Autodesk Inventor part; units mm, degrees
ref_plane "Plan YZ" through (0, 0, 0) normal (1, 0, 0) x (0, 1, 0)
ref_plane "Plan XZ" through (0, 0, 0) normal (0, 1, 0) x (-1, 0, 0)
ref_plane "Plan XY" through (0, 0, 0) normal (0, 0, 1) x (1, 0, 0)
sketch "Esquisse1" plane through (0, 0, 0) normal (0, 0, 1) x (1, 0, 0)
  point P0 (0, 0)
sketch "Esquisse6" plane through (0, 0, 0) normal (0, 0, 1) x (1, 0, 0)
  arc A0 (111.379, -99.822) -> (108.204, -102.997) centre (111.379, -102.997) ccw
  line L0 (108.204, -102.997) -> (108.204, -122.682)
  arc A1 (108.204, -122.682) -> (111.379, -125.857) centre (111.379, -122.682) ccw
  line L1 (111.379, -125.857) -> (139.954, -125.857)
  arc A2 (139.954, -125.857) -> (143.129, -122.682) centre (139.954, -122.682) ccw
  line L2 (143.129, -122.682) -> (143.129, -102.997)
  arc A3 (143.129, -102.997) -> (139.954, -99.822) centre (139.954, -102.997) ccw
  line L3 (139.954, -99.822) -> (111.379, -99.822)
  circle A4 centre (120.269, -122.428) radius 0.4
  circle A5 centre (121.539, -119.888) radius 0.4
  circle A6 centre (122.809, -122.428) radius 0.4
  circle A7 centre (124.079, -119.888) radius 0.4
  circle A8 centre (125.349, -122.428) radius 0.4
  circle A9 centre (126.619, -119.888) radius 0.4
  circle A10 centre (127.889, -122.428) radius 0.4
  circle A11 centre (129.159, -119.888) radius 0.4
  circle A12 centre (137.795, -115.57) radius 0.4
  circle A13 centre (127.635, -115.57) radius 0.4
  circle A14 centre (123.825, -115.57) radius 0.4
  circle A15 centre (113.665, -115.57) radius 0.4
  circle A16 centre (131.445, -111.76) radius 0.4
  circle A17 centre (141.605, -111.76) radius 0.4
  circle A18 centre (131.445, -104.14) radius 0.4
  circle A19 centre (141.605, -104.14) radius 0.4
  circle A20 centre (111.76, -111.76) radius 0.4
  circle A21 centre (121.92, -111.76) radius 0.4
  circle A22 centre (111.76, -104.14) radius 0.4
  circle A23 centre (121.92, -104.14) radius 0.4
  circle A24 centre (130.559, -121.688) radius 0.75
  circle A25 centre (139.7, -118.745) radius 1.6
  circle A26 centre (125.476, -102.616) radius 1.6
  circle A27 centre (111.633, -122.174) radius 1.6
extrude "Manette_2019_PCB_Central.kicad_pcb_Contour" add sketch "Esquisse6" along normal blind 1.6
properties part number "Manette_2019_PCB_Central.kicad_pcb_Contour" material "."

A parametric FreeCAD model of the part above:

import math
import FreeCAD as App
import Part
import Sketcher
Q = App.Units.Quantity

doc = App.newDocument("Part")
body = doc.addObject("PartDesign::Body", "Body")

sketch1 = doc.addObject("Sketcher::SketchObject", "Sketch")
body.addObject(sketch1)
sketch1.AttachmentSupport = (doc.XY_Plane, [""])
sketch1.MapMode = "FlatFace"
sketch1.addGeometry([
    Part.LineSegment(App.Vector(139.95, -99.82, 0), App.Vector(111.38, -99.82, 0)),
    Part.ArcOfCircle(Part.Circle(App.Vector(111.38, -103, 0), App.Vector(0, 0, 1), 3.17), math.radians(90), math.radians(180)),
    Part.LineSegment(App.Vector(108.2, -103, 0), App.Vector(108.2, -122.68, 0)),
    Part.ArcOfCircle(Part.Circle(App.Vector(111.38, -122.68, 0), App.Vector(0, 0, 1), 3.18), math.radians(180), math.radians(270)),
    Part.LineSegment(App.Vector(111.38, -125.86, 0), App.Vector(139.95, -125.86, 0)),
    Part.ArcOfCircle(Part.Circle(App.Vector(139.95, -122.68, 0), App.Vector(0, 0, 1), 3.17), math.radians(-90), math.radians(0)),
    Part.LineSegment(App.Vector(143.13, -122.68, 0), App.Vector(143.13, -103, 0)),
    Part.ArcOfCircle(Part.Circle(App.Vector(139.95, -103, 0), App.Vector(0, 0, 1), 3.17), math.radians(0), math.radians(90)),
    Part.Circle(App.Vector(111.63, -122.17, 0), App.Vector(0, 0, 1), 1.6),
    Part.Circle(App.Vector(120.27, -122.43, 0), App.Vector(0, 0, 1), 0.4),
    Part.Circle(App.Vector(122.81, -122.43, 0), App.Vector(0, 0, 1), 0.4),
    Part.Circle(App.Vector(125.35, -122.43, 0), App.Vector(0, 0, 1), 0.4),
    Part.Circle(App.Vector(121.54, -119.89, 0), App.Vector(0, 0, 1), 0.4),
    Part.Circle(App.Vector(124.08, -119.89, 0), App.Vector(0, 0, 1), 0.4),
    Part.Circle(App.Vector(113.67, -115.57, 0), App.Vector(0, 0, 1), 0.4),
    Part.Circle(App.Vector(123.83, -115.57, 0), App.Vector(0, 0, 1), 0.4),
    Part.Circle(App.Vector(127.89, -122.43, 0), App.Vector(0, 0, 1), 0.4),
    Part.Circle(App.Vector(126.62, -119.89, 0), App.Vector(0, 0, 1), 0.4),
    Part.Circle(App.Vector(129.16, -119.89, 0), App.Vector(0, 0, 1), 0.4),
    Part.Circle(App.Vector(130.56, -121.69, 0), App.Vector(0, 0, 1), 0.75),
    Part.Circle(App.Vector(127.64, -115.57, 0), App.Vector(0, 0, 1), 0.4),
    Part.Circle(App.Vector(139.7, -118.75, 0), App.Vector(0, 0, 1), 1.6),
    Part.Circle(App.Vector(137.79, -115.57, 0), App.Vector(0, 0, 1), 0.4),
    Part.Circle(App.Vector(111.76, -111.76, 0), App.Vector(0, 0, 1), 0.4),
    Part.Circle(App.Vector(121.92, -111.76, 0), App.Vector(0, 0, 1), 0.4),
    Part.Circle(App.Vector(111.76, -104.14, 0), App.Vector(0, 0, 1), 0.4),
    Part.Circle(App.Vector(121.92, -104.14, 0), App.Vector(0, 0, 1), 0.4),
    Part.Circle(App.Vector(125.48, -102.62, 0), App.Vector(0, 0, 1), 1.6),
    Part.Circle(App.Vector(131.44, -111.76, 0), App.Vector(0, 0, 1), 0.4),
    Part.Circle(App.Vector(141.6, -111.76, 0), App.Vector(0, 0, 1), 0.4),
    Part.Circle(App.Vector(131.44, -104.14, 0), App.Vector(0, 0, 1), 0.4),
    Part.Circle(App.Vector(141.6, -104.14, 0), App.Vector(0, 0, 1), 0.4),
], False)
sketch1.addConstraint([
    Sketcher.Constraint("Tangent", 0, 2, 1, 1),
    Sketcher.Constraint("Tangent", 1, 2, 2, 1),
    Sketcher.Constraint("Tangent", 2, 2, 3, 1),
    Sketcher.Constraint("Tangent", 3, 2, 4, 1),
    Sketcher.Constraint("Tangent", 4, 2, 5, 1),
    Sketcher.Constraint("Tangent", 5, 2, 6, 1),
    Sketcher.Constraint("Tangent", 6, 2, 7, 1),
    Sketcher.Constraint("Tangent", 7, 2, 0, 1),
    Sketcher.Constraint("Horizontal", 0),
    Sketcher.Constraint("Vertical", 2),
    Sketcher.Constraint("Horizontal", 4),
    Sketcher.Constraint("Vertical", 6),
    Sketcher.Constraint("Equal", 1, 3),
    Sketcher.Constraint("Equal", 3, 5),
    Sketcher.Constraint("Equal", 5, 7),
    Sketcher.Constraint("Equal", 9, 10),
    Sketcher.Constraint("Equal", 10, 11),
    Sketcher.Constraint("Equal", 11, 12),
    Sketcher.Constraint("Equal", 12, 13),
    Sketcher.Constraint("Equal", 13, 14),
    Sketcher.Constraint("Equal", 14, 15),
    Sketcher.Constraint("Equal", 15, 16),
    Sketcher.Constraint("Equal", 16, 17),
    Sketcher.Constraint("Equal", 17, 18),
    Sketcher.Constraint("Equal", 18, 20),
    Sketcher.Constraint("Equal", 8, 21),
    Sketcher.Constraint("Equal", 20, 22),
    Sketcher.Constraint("Equal", 22, 23),
    Sketcher.Constraint("Equal", 23, 24),
    Sketcher.Constraint("Equal", 24, 25),
    Sketcher.Constraint("Equal", 25, 26),
    Sketcher.Constraint("Equal", 21, 27),
    Sketcher.Constraint("Equal", 26, 28),
    Sketcher.Constraint("Equal", 28, 29),
    Sketcher.Constraint("Equal", 29, 30),
    Sketcher.Constraint("Equal", 30, 31),
    Sketcher.Constraint("Horizontal", 9, 3, 10, 3),
    Sketcher.Constraint("Horizontal", 10, 3, 11, 3),
    Sketcher.Constraint("Horizontal", 12, 3, 13, 3),
    Sketcher.Constraint("Horizontal", 14, 3, 15, 3),
    Sketcher.Constraint("Horizontal", 11, 3, 16, 3),
    Sketcher.Constraint("Horizontal", 13, 3, 17, 3),
    Sketcher.Constraint("Horizontal", 17, 3, 18, 3),
    Sketcher.Constraint("Horizontal", 15, 3, 20, 3),
    Sketcher.Constraint("Horizontal", 20, 3, 22, 3),
    Sketcher.Constraint("Horizontal", 23, 3, 24, 3),
    Sketcher.Constraint("Horizontal", 25, 3, 26, 3),
    Sketcher.Constraint("Horizontal", 24, 3, 28, 3),
    Sketcher.Constraint("Horizontal", 28, 3, 29, 3),
    Sketcher.Constraint("Horizontal", 26, 3, 30, 3),
    Sketcher.Constraint("Horizontal", 30, 3, 31, 3),
    Sketcher.Constraint("Vertical", 23, 3, 25, 3),
    Sketcher.Constraint("Vertical", 24, 3, 26, 3),
    Sketcher.Constraint("Vertical", 28, 3, 30, 3),
    Sketcher.Constraint("Vertical", 29, 3, 31, 3),
    Sketcher.Constraint("Radius", 1, Q("0.125 in")),
    Sketcher.Constraint("Diameter", 9, Q("0.0315 in")),
    Sketcher.Constraint("DistanceX", -1, 1, 21, 3, Q("5.5 in")),
    Sketcher.Constraint("DistanceX", -1, 1, 23, 3, Q("4.4 in")),
    Sketcher.Constraint("DistanceY", 23, 3, -1, 1, Q("4.4 in")),
    Sketcher.Constraint("DistanceX", -1, 1, 24, 3, Q("4.8 in")),
    Sketcher.Constraint("DistanceY", 25, 3, -1, 1, Q("4.1 in")),
    Sketcher.Constraint("DistanceX", 9, 3, 10, 3, Q("0.1 in")),
    Sketcher.Constraint("DistanceX", 10, 3, 11, 3, Q("0.1 in")),
    Sketcher.Constraint("DistanceY", 9, 3, 12, 3, Q("0.1 in")),
    Sketcher.Constraint("DistanceX", 3, 3, 12, 3, Q("0.4 in")),
    Sketcher.Constraint("DistanceX", 12, 3, 13, 3, Q("0.1 in")),
    Sketcher.Constraint("DistanceX", 11, 3, 16, 3, Q("0.1 in")),
    Sketcher.Constraint("DistanceX", 13, 3, 17, 3, Q("0.1 in")),
    Sketcher.Constraint("DistanceX", 17, 3, 18, 3, Q("0.1 in")),
    Sketcher.Constraint("DistanceX", 20, 3, 22, 3, Q("0.4 in")),
    Sketcher.Constraint("DistanceX", 15, 3, 28, 3, Q("0.3 in")),
    Sketcher.Constraint("DistanceX", 28, 3, 29, 3, Q("0.4 in")),
    Sketcher.Constraint("Diameter", 8, 3.2),
    Sketcher.Constraint("Diameter", 19, 1.5),
    Sketcher.Constraint("DistanceX", 0, 2, 0, 1, Q("1.125 in")),
    Sketcher.Constraint("DistanceY", 2, 2, 2, 1, Q("0.775 in")),
    Sketcher.Constraint("DistanceY", 3, 3, -1, 1, Q("4.83 in")),
    Sketcher.Constraint("DistanceX", -1, 1, 5, 3, Q("5.51 in")),
    Sketcher.Constraint("DistanceY", 8, 3, -1, 1, Q("4.81 in")),
    Sketcher.Constraint("DistanceY", 9, 3, -1, 1, Q("4.82 in")),
    Sketcher.Constraint("DistanceY", 14, 3, -1, 1, Q("4.55 in")),
    Sketcher.Constraint("DistanceX", -1, 1, 27, 3, Q("4.94 in")),
    Sketcher.Constraint("DistanceY", 27, 3, -1, 1, Q("4.04 in")),
    Sketcher.Constraint("DistanceX", 3, 3, 8, 3, Q("0.01 in")),
    Sketcher.Constraint("DistanceX", 8, 3, 9, 3, Q("0.34 in")),
    Sketcher.Constraint("DistanceX", 8, 3, 14, 3, Q("0.08 in")),
    Sketcher.Constraint("DistanceX", 15, 3, 13, 3, Q("0.01 in")),
    Sketcher.Constraint("DistanceX", 15, 3, 20, 3, Q("0.15 in")),
    Sketcher.Constraint("DistanceY", 4, 2, 21, 3, Q("0.28 in")),
    Sketcher.Constraint("DistanceX", -1, 1, 19, 3, 130.559),
    Sketcher.Constraint("DistanceY", 19, 3, -1, 1, 121.688),
])
pad1 = doc.addObject("PartDesign::Pad", "Pad")
body.addObject(pad1)
pad1.Profile = sketch1
pad1.Length = Q("0.0629921 in")

doc.recompute()
